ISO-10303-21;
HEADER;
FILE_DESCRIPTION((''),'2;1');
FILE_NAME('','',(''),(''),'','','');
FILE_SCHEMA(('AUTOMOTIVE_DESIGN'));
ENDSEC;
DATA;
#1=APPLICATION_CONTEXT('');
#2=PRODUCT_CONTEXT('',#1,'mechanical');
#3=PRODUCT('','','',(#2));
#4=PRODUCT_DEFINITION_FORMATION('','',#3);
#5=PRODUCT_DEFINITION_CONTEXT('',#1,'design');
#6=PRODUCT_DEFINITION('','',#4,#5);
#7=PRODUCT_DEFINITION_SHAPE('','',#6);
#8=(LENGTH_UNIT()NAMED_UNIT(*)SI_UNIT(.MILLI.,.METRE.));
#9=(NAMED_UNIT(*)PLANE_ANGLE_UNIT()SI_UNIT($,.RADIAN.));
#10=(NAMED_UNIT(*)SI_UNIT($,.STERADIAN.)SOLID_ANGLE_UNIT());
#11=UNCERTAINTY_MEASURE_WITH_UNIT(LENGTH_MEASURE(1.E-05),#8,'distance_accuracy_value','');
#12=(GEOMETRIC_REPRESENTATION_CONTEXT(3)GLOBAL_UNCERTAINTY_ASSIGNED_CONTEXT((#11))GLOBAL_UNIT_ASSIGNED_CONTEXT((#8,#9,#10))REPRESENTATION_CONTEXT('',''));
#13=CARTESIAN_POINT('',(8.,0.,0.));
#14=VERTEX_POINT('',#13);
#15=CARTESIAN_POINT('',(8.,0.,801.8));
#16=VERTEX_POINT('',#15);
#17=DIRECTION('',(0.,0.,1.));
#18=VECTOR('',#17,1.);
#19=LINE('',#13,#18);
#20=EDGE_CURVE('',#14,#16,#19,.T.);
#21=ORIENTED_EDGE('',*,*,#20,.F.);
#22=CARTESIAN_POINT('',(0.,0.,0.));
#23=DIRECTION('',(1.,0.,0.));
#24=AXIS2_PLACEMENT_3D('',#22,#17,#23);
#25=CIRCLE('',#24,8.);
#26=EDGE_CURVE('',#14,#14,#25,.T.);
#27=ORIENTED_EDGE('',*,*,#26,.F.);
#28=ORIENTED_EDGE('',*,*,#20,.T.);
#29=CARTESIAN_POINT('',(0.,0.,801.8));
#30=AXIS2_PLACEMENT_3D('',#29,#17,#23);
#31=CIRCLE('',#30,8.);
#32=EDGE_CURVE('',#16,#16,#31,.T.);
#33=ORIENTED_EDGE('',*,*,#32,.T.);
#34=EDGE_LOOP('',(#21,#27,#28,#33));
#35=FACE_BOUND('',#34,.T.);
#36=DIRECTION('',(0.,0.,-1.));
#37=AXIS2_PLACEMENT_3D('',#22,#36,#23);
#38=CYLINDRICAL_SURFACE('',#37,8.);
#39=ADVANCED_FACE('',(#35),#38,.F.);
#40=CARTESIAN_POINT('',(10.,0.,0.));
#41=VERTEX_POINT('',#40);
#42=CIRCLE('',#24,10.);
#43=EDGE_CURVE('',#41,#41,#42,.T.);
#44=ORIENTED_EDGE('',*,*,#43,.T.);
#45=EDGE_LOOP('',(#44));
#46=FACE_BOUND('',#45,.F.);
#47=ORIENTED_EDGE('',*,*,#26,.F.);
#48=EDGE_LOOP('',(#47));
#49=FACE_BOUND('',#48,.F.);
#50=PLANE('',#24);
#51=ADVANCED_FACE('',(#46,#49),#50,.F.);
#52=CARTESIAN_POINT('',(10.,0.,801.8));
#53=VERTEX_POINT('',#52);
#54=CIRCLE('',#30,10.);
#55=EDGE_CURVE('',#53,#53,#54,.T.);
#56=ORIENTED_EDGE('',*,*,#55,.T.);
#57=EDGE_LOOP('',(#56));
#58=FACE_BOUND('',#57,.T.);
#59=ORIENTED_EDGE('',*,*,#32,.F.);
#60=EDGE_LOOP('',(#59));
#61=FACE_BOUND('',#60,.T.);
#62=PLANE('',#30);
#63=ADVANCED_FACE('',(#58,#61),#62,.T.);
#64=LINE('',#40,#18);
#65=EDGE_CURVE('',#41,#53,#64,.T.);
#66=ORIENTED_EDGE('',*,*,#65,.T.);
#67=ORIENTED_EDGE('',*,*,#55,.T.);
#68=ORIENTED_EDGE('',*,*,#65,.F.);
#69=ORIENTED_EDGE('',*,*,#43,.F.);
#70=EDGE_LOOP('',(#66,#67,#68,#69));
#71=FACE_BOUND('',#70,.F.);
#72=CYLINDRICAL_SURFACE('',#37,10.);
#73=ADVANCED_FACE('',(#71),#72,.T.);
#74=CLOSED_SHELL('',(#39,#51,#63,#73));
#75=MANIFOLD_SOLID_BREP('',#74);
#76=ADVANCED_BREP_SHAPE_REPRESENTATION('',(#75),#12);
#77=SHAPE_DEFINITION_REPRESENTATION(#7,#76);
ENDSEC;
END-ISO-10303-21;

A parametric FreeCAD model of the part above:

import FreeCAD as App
import Part
import Sketcher
from FreeCAD import Vector

doc = App.newDocument("Part")
params = doc.addObject("Spreadsheet::Sheet", "Params")
for row, (alias, value) in enumerate([
    ("sketch1_diameter", "20 mm"),
    ("sketch1_diameter2", "16 mm"),
    ("pad1_length", "801.8 mm"),
], start=1):
    params.set(f"A{row}", alias)
    params.set(f"B{row}", "=" + value)
    params.setAlias(f"B{row}", alias)

body = doc.addObject("PartDesign::Body", "Body")

# Sketch on XY plane
sketch1 = body.newObject("Sketcher::SketchObject", "Sketch")
sketch1.AttachmentSupport = (doc.getObject("XY_Plane"), [""])
sketch1.MapMode = "FlatFace"
sketch1.addGeometry([
    Part.Circle(Vector(0, 0, 0), Vector(0, 0, 1), 10),
    Part.Circle(Vector(0, 0, 0), Vector(0, 0, 1), 8),
], False)
sketch1.addConstraint([
    Sketcher.Constraint("Coincident", 0, 3, -1, 1),
    Sketcher.Constraint("Coincident", 1, 3, -1, 1),
    Sketcher.Constraint("Diameter", 0, 20.0),
    Sketcher.Constraint("Diameter", 1, 16.0),
])
sketch1.setExpression("Constraints[2]", "Params.sketch1_diameter")
sketch1.setExpression("Constraints[3]", "Params.sketch1_diameter2")
pad1 = body.newObject("PartDesign::Pad", "Pad")
pad1.Profile = sketch1
pad1.setExpression("Length", "Params.pad1_length")

doc.recompute()
